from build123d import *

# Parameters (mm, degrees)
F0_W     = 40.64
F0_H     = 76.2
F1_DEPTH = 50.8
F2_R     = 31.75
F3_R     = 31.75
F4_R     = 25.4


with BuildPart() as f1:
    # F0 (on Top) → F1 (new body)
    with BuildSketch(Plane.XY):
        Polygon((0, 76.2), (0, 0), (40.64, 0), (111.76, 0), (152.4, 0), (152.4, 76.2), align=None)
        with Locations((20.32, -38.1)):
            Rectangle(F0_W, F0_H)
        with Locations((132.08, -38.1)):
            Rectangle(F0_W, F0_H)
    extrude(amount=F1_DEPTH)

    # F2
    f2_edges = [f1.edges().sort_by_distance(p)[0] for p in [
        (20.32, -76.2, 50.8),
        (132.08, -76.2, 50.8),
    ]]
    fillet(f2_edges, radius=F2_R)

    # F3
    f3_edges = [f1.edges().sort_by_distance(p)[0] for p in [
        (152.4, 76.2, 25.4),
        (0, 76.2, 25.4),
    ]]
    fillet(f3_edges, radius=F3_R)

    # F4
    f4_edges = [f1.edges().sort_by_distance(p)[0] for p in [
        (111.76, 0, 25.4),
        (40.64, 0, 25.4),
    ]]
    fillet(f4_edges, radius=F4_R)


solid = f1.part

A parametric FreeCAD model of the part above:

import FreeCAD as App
import Part
import Sketcher

V = App.Vector
Q = App.Units.Quantity


def edges_at(feature, points):
    """Names of the edges that pass closest to the given points."""
    edges = feature.Shape.Edges
    near = lambda p: min(range(len(edges)), key=lambda i: edges[i].distToShape(Part.Vertex(*p))[0])
    return sorted({f"Edge{near(p) + 1}" for p in points})

doc = App.newDocument("Part")
params = doc.addObject("Spreadsheet::Sheet", "Params")
for row, (alias, value) in enumerate([
    ("sketch1_width", "6 in"),
    ("sketch1_width2", "1.6 in"),
    ("pad1_length", "2 in"),
    ("fillet_radius", "1.25 in"),
    ("fillet2_radius", "1.25 in"),
    ("fillet3_radius", "1 in"),
], start=1):
    params.set(f"A{row}", alias)
    params.set(f"B{row}", "=" + value)
    params.setAlias(f"B{row}", alias)

body = doc.addObject("PartDesign::Body", "Body")

# Sketch on XY plane
sketch1 = body.newObject("Sketcher::SketchObject", "Sketch")
sketch1.AttachmentSupport = (doc.getObject("XY_Plane"), [""])
sketch1.MapMode = "FlatFace"
sketch1.addGeometry([
    Part.LineSegment(V(0, 76, 0), V(0, -76, 0)),  # 0
    Part.LineSegment(V(0, -76, 0), V(41, -76, 0)),  # 1
    Part.LineSegment(V(41, -76, 0), V(41, 0, 0)),  # 2
    Part.LineSegment(V(41, 0, 0), V(112, 0, 0)),  # 3
    Part.LineSegment(V(112, 0, 0), V(112, -76, 0)),  # 4
    Part.LineSegment(V(112, -76, 0), V(152, -76, 0)),  # 5
    Part.LineSegment(V(152, -76, 0), V(152, 76, 0)),  # 6
    Part.LineSegment(V(152, 76, 0), V(0, 76, 0)),  # 7
], False)
sketch1.addConstraint([
    Sketcher.Constraint("Coincident", 0, 2, 1, 1),
    Sketcher.Constraint("Coincident", 1, 2, 2, 1),
    Sketcher.Constraint("Coincident", 2, 2, 3, 1),
    Sketcher.Constraint("Coincident", 3, 2, 4, 1),
    Sketcher.Constraint("Coincident", 4, 2, 5, 1),
    Sketcher.Constraint("Coincident", 5, 2, 6, 1),
    Sketcher.Constraint("Coincident", 6, 2, 7, 1),
    Sketcher.Constraint("Coincident", 7, 2, 0, 1),
    Sketcher.Constraint("Vertical", 0),
    Sketcher.Constraint("Horizontal", 1),
    Sketcher.Constraint("Vertical", 2),
    Sketcher.Constraint("Horizontal", 3),
    Sketcher.Constraint("Vertical", 4),
    Sketcher.Constraint("Horizontal", 5),
    Sketcher.Constraint("Vertical", 6),
    Sketcher.Constraint("Horizontal", 7),
    Sketcher.Constraint("Symmetric", 0, 2, 7, 2, -1, 1),
    Sketcher.Constraint("PointOnObject", 2, 2, -1),
    Sketcher.Constraint("Horizontal", 1, 2, 4, 2),
    Sketcher.Constraint("Equal", 1, 5),
    Sketcher.Constraint("Equal", 7, 0),
    Sketcher.Constraint("DistanceX", 7, 2, 7, 1, Q("6 in")),
    Sketcher.Constraint("DistanceX", 1, 1, 1, 2, Q("1.6 in")),
])
sketch1.setExpression("Constraints[21]", "Params.sketch1_width")
sketch1.setExpression("Constraints[22]", "Params.sketch1_width2")
pad1 = body.newObject("PartDesign::Pad", "Pad")
pad1.Profile = sketch1
pad1.setExpression("Length", "Params.pad1_length")
doc.recompute()

fillet = body.newObject("PartDesign::Fillet", "Fillet")
fillet.Base = (pad1, edges_at(pad1, [(20.32, -76.2, 50.8), (132.08, -76.2, 50.8)]))
fillet.setExpression("Radius", "Params.fillet_radius")
doc.recompute()

fillet2 = body.newObject("PartDesign::Fillet", "Fillet001")
fillet2.Base = (fillet, edges_at(fillet, [(152.4, 76.2, 25.4), (0, 76.2, 25.4)]))
fillet2.setExpression("Radius", "Params.fillet2_radius")
doc.recompute()

fillet3 = body.newObject("PartDesign::Fillet", "Fillet002")
fillet3.Base = (fillet2, edges_at(fillet2, [(111.76, 0, 25.4), (40.64, 0, 25.4)]))
fillet3.setExpression("Radius", "Params.fillet3_radius")

doc.recompute()
